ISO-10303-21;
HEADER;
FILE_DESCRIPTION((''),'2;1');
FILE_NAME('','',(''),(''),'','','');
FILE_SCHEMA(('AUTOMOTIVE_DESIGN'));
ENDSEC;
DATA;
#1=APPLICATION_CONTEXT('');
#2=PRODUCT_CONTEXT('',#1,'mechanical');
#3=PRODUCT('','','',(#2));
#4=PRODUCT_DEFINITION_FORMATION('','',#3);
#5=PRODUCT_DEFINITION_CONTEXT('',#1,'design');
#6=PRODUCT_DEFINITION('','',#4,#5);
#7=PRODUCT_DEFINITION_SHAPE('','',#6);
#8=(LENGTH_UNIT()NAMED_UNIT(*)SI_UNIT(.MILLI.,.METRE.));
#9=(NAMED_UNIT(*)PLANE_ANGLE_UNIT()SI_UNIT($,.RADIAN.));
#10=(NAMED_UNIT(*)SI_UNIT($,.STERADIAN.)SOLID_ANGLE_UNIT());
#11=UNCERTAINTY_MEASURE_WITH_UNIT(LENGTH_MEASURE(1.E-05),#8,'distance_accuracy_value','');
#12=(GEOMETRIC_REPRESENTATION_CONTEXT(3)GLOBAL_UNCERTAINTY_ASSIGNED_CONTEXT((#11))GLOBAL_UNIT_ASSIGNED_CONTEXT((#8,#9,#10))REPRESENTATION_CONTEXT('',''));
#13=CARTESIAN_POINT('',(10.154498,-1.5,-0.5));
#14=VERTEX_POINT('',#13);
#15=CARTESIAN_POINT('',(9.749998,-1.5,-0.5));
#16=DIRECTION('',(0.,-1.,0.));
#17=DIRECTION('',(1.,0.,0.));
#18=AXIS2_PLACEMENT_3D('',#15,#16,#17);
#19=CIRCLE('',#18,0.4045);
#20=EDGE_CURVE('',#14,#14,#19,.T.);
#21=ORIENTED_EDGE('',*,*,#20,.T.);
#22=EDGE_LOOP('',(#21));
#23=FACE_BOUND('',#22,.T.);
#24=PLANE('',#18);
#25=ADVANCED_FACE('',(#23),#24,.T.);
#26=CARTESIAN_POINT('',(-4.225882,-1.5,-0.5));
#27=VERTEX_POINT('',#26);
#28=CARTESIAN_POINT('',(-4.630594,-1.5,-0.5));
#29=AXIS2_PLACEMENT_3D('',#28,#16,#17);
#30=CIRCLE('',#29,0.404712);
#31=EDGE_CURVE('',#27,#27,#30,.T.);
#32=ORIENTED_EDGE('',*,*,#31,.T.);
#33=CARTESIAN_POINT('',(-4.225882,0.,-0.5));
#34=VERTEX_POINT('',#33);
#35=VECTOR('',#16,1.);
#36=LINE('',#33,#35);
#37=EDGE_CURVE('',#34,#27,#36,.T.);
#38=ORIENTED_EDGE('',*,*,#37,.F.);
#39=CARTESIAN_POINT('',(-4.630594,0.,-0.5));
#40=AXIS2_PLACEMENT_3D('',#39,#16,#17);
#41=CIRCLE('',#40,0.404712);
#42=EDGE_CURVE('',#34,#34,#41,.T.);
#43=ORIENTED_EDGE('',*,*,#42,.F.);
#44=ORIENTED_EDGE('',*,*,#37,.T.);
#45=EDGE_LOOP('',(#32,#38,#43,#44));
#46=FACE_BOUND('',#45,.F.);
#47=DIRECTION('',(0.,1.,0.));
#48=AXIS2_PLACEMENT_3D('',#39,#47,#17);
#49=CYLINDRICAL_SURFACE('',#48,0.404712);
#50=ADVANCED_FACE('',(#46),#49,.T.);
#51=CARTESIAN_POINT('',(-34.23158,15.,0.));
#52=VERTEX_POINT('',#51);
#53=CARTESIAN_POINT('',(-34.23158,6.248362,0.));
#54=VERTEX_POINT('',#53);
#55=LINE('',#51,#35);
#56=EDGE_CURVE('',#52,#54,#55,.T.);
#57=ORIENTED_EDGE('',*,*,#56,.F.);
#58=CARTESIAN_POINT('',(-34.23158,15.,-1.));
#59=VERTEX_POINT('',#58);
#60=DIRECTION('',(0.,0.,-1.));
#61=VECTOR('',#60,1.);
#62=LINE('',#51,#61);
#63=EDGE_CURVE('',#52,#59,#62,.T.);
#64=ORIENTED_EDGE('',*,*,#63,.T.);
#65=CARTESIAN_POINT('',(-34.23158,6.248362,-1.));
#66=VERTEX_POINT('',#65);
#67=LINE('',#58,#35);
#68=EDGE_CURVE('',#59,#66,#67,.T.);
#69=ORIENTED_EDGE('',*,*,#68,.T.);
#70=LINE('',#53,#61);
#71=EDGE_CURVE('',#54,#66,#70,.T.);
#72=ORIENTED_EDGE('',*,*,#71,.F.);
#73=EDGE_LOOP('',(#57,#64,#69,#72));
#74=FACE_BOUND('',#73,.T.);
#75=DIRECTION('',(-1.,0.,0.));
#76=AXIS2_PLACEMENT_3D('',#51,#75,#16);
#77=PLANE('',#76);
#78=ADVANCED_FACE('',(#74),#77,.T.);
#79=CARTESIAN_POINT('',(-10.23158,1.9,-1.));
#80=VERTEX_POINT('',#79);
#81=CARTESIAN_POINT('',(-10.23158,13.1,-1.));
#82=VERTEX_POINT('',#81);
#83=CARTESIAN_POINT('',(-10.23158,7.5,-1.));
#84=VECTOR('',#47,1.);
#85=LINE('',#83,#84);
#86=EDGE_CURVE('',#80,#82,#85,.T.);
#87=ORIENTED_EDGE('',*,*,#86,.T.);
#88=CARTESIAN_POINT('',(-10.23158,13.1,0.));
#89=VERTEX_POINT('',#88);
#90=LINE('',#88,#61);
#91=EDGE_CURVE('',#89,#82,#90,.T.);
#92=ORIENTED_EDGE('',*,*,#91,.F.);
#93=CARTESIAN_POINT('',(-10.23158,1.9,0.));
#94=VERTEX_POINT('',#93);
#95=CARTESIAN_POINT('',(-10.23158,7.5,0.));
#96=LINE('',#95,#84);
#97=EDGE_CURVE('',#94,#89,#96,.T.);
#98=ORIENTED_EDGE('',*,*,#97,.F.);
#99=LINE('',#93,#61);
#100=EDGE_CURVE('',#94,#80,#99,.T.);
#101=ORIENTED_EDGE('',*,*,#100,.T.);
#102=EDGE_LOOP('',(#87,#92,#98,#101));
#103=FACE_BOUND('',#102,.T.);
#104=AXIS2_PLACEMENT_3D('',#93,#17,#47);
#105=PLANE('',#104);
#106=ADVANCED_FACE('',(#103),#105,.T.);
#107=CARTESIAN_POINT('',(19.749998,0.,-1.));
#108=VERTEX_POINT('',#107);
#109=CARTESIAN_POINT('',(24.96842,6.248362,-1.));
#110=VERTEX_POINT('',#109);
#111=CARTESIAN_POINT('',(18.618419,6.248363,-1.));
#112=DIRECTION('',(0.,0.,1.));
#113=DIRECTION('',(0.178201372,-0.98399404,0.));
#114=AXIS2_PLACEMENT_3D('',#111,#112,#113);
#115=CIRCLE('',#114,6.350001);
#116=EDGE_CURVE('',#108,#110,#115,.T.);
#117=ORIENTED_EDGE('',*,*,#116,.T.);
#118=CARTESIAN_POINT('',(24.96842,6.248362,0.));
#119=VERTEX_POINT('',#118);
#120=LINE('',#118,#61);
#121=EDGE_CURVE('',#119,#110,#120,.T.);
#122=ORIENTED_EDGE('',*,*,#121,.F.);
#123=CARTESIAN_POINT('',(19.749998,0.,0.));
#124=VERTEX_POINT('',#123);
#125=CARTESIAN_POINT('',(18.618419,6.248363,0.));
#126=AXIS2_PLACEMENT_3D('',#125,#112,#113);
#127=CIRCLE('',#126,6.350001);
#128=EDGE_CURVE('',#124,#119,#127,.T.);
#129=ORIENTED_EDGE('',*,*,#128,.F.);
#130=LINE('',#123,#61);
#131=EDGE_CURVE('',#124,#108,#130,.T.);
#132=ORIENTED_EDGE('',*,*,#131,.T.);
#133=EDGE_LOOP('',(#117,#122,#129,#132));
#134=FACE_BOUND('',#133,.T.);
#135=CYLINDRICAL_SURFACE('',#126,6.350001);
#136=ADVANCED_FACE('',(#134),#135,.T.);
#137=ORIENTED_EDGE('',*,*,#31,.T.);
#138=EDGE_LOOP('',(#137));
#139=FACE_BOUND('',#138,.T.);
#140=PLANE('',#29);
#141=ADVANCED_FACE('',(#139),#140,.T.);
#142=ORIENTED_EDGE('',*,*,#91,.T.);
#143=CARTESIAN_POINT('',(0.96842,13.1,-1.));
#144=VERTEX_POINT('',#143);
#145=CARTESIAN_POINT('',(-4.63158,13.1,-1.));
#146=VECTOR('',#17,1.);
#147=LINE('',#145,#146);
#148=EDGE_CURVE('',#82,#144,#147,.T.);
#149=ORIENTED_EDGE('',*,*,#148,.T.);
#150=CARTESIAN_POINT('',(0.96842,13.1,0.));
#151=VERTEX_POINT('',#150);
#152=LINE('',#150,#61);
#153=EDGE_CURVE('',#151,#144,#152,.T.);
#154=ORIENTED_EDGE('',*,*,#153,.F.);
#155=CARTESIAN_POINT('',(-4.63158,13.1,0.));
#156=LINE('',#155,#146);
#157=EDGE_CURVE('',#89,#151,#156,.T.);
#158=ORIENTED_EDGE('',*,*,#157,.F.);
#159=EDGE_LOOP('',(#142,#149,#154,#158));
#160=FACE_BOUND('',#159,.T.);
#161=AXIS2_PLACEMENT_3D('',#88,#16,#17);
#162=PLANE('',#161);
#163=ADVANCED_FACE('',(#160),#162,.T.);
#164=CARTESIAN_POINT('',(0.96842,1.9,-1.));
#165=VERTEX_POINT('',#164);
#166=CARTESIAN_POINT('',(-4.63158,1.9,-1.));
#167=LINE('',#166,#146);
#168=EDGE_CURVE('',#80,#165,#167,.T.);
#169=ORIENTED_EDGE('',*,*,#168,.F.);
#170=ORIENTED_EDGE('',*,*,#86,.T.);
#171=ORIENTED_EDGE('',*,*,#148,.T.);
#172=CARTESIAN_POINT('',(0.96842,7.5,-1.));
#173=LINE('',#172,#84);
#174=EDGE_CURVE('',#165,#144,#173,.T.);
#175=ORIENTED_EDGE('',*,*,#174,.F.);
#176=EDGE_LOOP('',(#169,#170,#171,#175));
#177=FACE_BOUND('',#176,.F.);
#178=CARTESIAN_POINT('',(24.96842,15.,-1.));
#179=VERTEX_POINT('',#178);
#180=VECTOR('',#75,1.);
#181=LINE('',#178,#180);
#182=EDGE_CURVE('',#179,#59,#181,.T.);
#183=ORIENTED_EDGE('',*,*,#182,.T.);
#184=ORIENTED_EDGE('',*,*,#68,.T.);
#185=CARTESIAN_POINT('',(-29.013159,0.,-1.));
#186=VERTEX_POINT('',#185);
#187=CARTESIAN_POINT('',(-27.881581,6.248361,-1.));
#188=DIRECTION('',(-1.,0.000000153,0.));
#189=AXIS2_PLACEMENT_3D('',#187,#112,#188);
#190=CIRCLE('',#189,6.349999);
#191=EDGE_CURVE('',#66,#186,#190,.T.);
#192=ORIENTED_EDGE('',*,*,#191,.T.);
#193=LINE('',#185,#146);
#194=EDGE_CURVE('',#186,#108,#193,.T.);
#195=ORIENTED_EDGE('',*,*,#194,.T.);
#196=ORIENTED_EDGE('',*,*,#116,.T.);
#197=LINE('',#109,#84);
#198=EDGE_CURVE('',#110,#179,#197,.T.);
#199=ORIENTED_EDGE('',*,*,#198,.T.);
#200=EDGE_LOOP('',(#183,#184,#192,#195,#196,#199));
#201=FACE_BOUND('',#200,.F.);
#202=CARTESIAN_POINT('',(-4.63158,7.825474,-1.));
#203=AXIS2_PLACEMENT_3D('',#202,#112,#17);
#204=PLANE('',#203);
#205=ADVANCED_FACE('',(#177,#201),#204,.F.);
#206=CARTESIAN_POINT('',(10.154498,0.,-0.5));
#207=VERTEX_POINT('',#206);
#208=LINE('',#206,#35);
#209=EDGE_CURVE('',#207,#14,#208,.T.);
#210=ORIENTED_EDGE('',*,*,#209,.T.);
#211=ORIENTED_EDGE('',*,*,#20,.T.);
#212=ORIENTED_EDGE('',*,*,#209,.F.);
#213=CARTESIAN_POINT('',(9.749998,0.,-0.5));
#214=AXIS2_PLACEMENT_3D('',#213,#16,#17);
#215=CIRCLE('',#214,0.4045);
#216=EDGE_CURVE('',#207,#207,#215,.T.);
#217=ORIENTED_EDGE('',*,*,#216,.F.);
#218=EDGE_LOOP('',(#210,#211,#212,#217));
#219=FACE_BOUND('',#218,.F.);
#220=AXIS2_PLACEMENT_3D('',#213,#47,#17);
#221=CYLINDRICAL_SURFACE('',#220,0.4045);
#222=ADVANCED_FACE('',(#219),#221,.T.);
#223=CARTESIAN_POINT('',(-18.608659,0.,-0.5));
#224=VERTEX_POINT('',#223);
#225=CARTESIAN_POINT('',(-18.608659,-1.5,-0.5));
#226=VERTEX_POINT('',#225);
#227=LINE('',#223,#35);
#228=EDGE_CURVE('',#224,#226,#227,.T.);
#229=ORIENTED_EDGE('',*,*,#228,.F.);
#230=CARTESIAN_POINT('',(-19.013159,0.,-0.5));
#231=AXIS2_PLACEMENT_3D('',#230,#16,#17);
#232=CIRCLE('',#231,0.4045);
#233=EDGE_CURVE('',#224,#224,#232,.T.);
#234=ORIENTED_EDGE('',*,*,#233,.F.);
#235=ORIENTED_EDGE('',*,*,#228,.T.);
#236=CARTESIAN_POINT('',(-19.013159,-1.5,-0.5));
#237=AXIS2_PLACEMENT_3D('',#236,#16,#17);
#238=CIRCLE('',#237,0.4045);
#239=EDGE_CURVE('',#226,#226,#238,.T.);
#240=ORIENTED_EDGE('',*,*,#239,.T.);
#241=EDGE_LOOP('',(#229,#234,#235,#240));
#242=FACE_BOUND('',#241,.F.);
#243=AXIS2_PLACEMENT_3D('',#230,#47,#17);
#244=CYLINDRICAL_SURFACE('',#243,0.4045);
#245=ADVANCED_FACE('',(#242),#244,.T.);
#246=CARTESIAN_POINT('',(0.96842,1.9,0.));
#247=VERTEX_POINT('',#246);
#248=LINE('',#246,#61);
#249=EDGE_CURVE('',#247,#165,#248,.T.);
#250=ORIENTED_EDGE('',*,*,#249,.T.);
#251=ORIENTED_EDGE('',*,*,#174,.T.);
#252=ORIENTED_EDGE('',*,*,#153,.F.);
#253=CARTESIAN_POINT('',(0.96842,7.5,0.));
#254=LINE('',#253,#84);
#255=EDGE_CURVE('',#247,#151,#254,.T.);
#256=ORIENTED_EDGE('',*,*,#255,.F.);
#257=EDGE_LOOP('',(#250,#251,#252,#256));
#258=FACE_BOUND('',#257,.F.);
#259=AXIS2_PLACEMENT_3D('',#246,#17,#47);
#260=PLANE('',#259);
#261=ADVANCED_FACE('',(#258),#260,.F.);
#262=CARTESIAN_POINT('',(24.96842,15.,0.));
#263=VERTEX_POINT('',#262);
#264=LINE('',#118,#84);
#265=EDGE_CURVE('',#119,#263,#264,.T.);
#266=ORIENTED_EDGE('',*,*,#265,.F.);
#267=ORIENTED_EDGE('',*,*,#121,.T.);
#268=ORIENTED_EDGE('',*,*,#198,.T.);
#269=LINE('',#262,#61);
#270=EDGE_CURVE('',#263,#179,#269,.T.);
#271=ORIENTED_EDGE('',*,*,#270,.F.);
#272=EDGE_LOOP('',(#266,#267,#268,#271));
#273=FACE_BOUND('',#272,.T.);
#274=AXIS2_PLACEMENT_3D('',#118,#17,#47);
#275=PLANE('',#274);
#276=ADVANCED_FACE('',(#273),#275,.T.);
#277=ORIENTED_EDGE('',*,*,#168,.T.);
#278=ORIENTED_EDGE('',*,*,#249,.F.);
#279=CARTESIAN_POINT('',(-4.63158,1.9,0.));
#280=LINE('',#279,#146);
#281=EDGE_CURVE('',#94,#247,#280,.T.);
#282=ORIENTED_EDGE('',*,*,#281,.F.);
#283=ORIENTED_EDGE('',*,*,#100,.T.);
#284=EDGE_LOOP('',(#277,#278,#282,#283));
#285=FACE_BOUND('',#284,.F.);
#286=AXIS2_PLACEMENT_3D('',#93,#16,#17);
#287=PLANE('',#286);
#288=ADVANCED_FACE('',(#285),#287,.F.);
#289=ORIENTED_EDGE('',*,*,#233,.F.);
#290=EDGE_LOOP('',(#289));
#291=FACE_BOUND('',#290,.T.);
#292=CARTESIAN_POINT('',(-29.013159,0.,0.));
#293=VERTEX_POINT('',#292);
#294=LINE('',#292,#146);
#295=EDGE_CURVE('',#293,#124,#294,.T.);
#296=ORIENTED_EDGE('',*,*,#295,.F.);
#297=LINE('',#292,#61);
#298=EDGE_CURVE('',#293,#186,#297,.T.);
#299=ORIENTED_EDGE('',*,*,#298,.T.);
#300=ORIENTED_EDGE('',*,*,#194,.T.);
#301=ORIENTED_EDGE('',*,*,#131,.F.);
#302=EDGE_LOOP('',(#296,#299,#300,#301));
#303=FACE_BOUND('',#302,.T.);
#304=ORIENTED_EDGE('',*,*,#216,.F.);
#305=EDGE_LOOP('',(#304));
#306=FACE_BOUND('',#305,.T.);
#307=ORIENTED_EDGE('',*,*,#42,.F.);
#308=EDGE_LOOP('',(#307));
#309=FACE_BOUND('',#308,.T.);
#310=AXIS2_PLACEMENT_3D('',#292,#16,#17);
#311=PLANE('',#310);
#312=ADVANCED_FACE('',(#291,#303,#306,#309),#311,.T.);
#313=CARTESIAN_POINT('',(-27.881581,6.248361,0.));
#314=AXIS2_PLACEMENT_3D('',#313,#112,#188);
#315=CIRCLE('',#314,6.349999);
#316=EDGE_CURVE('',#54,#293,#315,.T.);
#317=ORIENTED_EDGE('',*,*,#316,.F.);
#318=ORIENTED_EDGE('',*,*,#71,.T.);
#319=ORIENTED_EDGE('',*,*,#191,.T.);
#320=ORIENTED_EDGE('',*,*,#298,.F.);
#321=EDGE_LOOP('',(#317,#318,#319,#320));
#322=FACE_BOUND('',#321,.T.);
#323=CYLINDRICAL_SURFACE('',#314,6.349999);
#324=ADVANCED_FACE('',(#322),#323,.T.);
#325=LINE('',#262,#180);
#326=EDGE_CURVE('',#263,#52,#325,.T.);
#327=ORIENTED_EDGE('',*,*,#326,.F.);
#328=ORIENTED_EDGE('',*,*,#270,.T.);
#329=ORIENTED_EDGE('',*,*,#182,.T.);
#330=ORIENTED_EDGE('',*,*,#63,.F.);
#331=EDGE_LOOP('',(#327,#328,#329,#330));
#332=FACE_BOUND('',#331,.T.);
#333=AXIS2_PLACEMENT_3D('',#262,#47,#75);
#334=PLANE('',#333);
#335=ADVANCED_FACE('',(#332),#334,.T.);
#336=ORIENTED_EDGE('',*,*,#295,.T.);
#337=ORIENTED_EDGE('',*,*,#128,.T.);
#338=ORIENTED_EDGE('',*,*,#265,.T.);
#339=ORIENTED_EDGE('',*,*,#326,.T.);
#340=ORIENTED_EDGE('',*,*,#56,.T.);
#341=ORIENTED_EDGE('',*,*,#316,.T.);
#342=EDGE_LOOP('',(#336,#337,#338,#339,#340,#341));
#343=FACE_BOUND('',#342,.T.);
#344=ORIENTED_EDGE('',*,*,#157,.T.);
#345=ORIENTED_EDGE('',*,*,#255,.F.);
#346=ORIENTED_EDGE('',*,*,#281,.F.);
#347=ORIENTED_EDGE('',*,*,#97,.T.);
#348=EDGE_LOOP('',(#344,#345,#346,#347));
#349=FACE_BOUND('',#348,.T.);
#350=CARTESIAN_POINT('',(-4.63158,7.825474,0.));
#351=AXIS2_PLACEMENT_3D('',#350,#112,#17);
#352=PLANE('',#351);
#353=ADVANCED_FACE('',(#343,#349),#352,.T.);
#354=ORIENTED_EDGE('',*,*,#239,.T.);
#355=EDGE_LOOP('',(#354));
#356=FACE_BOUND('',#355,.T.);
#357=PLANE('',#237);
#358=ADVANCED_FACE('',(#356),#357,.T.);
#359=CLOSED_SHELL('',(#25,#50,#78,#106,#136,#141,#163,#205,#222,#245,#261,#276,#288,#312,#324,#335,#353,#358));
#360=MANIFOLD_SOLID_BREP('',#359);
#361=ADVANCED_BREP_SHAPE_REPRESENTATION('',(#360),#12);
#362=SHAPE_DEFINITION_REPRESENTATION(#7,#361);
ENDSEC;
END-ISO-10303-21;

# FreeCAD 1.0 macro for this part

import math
import FreeCAD as App
import Part
import Sketcher

doc = App.newDocument("Part")
params = doc.addObject("Spreadsheet::Sheet", "Params")
for row, (alias, value) in enumerate([
    ("sketch1_radius", "6.349999 mm"),
    ("sketch1_radius2", "6.350001 mm"),
    ("sketch1_width", "59.2 mm"),
    ("pad1_length", "1 mm"),
    ("pad2_length", "1.5 mm"),
    ("sketch3_width", "11.2 mm"),
    ("pocket1_length", "1 mm"),
], start=1):
    params.set(f"A{row}", alias)
    params.set(f"B{row}", "=" + value)
    params.setAlias(f"B{row}", alias)

body = doc.addObject("PartDesign::Body", "Body")

# Sketch on XY plane
sketch1 = body.newObject("Sketcher::SketchObject", "Sketch")
sketch1.AttachmentSupport = (doc.getObject("XY_Plane"), [""])
sketch1.MapMode = "FlatFace"
sketch1.addGeometry(Part.ArcOfCircle(Part.Circle(App.Vector(-28, 6, 0), App.Vector(0, 0, 1), 6), math.radians(180), math.radians(260)), False)
sketch1.addGeometry(Part.LineSegment(App.Vector(-29, 0, 0), App.Vector(20, 0, 0)), False)
sketch1.addGeometry(Part.ArcOfCircle(Part.Circle(App.Vector(19, 6, 0), App.Vector(0, 0, 1), 6), math.radians(-80), math.radians(0)), False)
sketch1.addGeometry(Part.LineSegment(App.Vector(25, 6, 0), App.Vector(25, 15, 0)), False)
sketch1.addGeometry(Part.LineSegment(App.Vector(25, 15, 0), App.Vector(-34, 15, 0)), False)
sketch1.addGeometry(Part.LineSegment(App.Vector(-34, 15, 0), App.Vector(-34, 6, 0)), False)
sketch1.addConstraint(Sketcher.Constraint("Coincident", 0, 2, 1, 1))
sketch1.addConstraint(Sketcher.Constraint("Coincident", 1, 2, 2, 1))
sketch1.addConstraint(Sketcher.Constraint("Tangent", 2, 2, 3, 1))
sketch1.addConstraint(Sketcher.Constraint("Coincident", 3, 2, 4, 1))
sketch1.addConstraint(Sketcher.Constraint("Coincident", 4, 2, 5, 1))
sketch1.addConstraint(Sketcher.Constraint("Tangent", 5, 2, 0, 1))
sketch1.addConstraint(Sketcher.Constraint("Horizontal", 1))
sketch1.addConstraint(Sketcher.Constraint("Vertical", 3))
sketch1.addConstraint(Sketcher.Constraint("Horizontal", 4))
sketch1.addConstraint(Sketcher.Constraint("Vertical", 5))
sketch1.addConstraint(Sketcher.Constraint("PointOnObject", 0, 2, -1))
sketch1.addConstraint(Sketcher.Constraint("Horizontal", 0, 3, 2, 3))
sketch1.addConstraint(Sketcher.Constraint("Radius", 0, 6.349999))
sketch1.addConstraint(Sketcher.Constraint("Radius", 2, 6.350001))
sketch1.addConstraint(Sketcher.Constraint("DistanceX", 4, 2, 4, 1, 59.2))
sketch1.addConstraint(Sketcher.Constraint("DistanceY", -1, 1, 3, 2, 15.0))
sketch1.addConstraint(Sketcher.Constraint("DistanceX", -1, 1, 1, 2, 19.749998))
sketch1.addConstraint(Sketcher.Constraint("DistanceX", 1, 1, 1, 2, 48.763157))
sketch1.setExpression("Constraints[12]", "Params.sketch1_radius")
sketch1.setExpression("Constraints[13]", "Params.sketch1_radius2")
sketch1.setExpression("Constraints[14]", "Params.sketch1_width")
pad1 = body.newObject("PartDesign::Pad", "Pad")
pad1.Profile = sketch1
pad1.setExpression("Length", "Params.pad1_length")
pad1.Reversed = True

# Sketch on XZ plane
sketch2 = body.newObject("Sketcher::SketchObject", "Sketch001")
sketch2.AttachmentSupport = (doc.getObject("XZ_Plane"), [""])
sketch2.MapMode = "FlatFace"
sketch2.addGeometry(Part.Circle(App.Vector(-19.01, -0.5, 0), App.Vector(0, 0, 1), 0.4), False)
sketch2.addGeometry(Part.Circle(App.Vector(-4.63, -0.5, 0), App.Vector(0, 0, 1), 0.4), False)
sketch2.addGeometry(Part.Circle(App.Vector(9.75, -0.5, 0), App.Vector(0, 0, 1), 0.4), False)
sketch2.addConstraint(Sketcher.Constraint("Equal", 0, 2))
sketch2.addConstraint(Sketcher.Constraint("Horizontal", 0, 3, 1, 3))
sketch2.addConstraint(Sketcher.Constraint("Horizontal", 1, 3, 2, 3))
sketch2.addConstraint(Sketcher.Constraint("Diameter", 0, 0.809))
sketch2.addConstraint(Sketcher.Constraint("DistanceY", 0, 3, -1, 1, 0.5))
sketch2.addConstraint(Sketcher.Constraint("Diameter", 1, 0.809424))
sketch2.addConstraint(Sketcher.Constraint("DistanceX", 0, 3, -1, 1, 19.013159))
sketch2.addConstraint(Sketcher.Constraint("DistanceX", 1, 3, -1, 1, 4.630594))
sketch2.addConstraint(Sketcher.Constraint("DistanceX", -1, 1, 2, 3, 9.749998))
pad2 = body.newObject("PartDesign::Pad", "Pad001")
pad2.Profile = sketch2
pad2.setExpression("Length", "Params.pad2_length")

# Sketch on XY plane
sketch3 = body.newObject("Sketcher::SketchObject", "Sketch002")
sketch3.AttachmentSupport = (doc.getObject("XY_Plane"), [""])
sketch3.MapMode = "FlatFace"
sketch3.addGeometry(Part.LineSegment(App.Vector(-10, 13, 0), App.Vector(-10, 2, 0)), False)
sketch3.addGeometry(Part.LineSegment(App.Vector(-10, 2, 0), App.Vector(1, 2, 0)), False)
sketch3.addGeometry(Part.LineSegment(App.Vector(1, 2, 0), App.Vector(1, 13, 0)), False)
sketch3.addGeometry(Part.LineSegment(App.Vector(1, 13, 0), App.Vector(-10, 13, 0)), False)
sketch3.addConstraint(Sketcher.Constraint("Coincident", 0, 2, 1, 1))
sketch3.addConstraint(Sketcher.Constraint("Coincident", 1, 2, 2, 1))
sketch3.addConstraint(Sketcher.Constraint("Coincident", 2, 2, 3, 1))
sketch3.addConstraint(Sketcher.Constraint("Coincident", 3, 2, 0, 1))
sketch3.addConstraint(Sketcher.Constraint("Vertical", 0))
sketch3.addConstraint(Sketcher.Constraint("Horizontal", 1))
sketch3.addConstraint(Sketcher.Constraint("Vertical", 2))
sketch3.addConstraint(Sketcher.Constraint("Horizontal", 3))
sketch3.addConstraint(Sketcher.Constraint("Equal", 3, 0))
sketch3.addConstraint(Sketcher.Constraint("DistanceX", 1, 1, 1, 2, 11.2))
sketch3.addConstraint(Sketcher.Constraint("DistanceY", -1, 1, 0, 2, 1.9))
sketch3.addConstraint(Sketcher.Constraint("DistanceX", 0, 2, -1, 1, 10.23158))
sketch3.setExpression("Constraints[9]", "Params.sketch3_width")
pocket1 = body.newObject("PartDesign::Pocket", "Pocket")
pocket1.Profile = sketch3
pocket1.setExpression("Length", "Params.pocket1_length")

doc.recompute()
